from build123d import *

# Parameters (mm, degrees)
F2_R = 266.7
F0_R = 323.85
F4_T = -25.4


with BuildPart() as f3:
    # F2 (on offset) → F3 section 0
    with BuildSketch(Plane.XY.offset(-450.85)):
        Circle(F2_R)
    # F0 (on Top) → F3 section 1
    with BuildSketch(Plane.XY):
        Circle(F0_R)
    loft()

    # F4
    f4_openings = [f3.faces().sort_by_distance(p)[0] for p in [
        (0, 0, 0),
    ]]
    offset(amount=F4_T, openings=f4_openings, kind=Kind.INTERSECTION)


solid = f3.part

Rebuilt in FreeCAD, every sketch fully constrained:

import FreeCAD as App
import Part
import Sketcher

V = App.Vector
Q = App.Units.Quantity


def faces_at(feature, points):
    """Names of the faces that lie closest to the given points."""
    faces = feature.Shape.Faces
    near = lambda p: min(range(len(faces)), key=lambda i: faces[i].distToShape(Part.Vertex(*p))[0])
    return sorted({f"Face{near(p) + 1}" for p in points})

doc = App.newDocument("Part")
body = doc.addObject("PartDesign::Body", "Body")

sketch1 = body.newObject("Sketcher::SketchObject", "Sketch")
sketch1.AttachmentSupport = (doc.getObject("XY_Plane"), [""])
sketch1.MapMode = "FlatFace"
sketch1.AttachmentOffset = App.Placement(V(0, 0, -17.75 * 25.4), App.Rotation())
sketch1.addGeometry(Part.Circle(V(0, 0, 0), V(0, 0, 1), 266.7), False)
sketch1.addConstraint([
    Sketcher.Constraint("Coincident", 0, 3, -1, 1),
    Sketcher.Constraint("Diameter", 0, Q("21 in")),
])

sketch2 = body.newObject("Sketcher::SketchObject", "Sketch001")
sketch2.AttachmentSupport = (doc.getObject("XY_Plane"), [""])
sketch2.MapMode = "FlatFace"
sketch2.addGeometry(Part.Circle(V(0, 0, 0), V(0, 0, 1), 323.85), False)
sketch2.addConstraint([
    Sketcher.Constraint("Coincident", 0, 3, -1, 1),
    Sketcher.Constraint("Diameter", 0, Q("25.5 in")),
])

additiveloft = body.newObject("PartDesign::AdditiveLoft", "AdditiveLoft")
additiveloft.Profile = sketch1
additiveloft.Sections = [sketch2]
doc.recompute()

thickness = body.newObject("PartDesign::Thickness", "Thickness")
thickness.Base = (additiveloft, faces_at(additiveloft, [(0, 0, 0)]))
thickness.Value = Q("1 in")
thickness.Reversed = True
thickness.Join = "Intersection"

doc.recompute()
